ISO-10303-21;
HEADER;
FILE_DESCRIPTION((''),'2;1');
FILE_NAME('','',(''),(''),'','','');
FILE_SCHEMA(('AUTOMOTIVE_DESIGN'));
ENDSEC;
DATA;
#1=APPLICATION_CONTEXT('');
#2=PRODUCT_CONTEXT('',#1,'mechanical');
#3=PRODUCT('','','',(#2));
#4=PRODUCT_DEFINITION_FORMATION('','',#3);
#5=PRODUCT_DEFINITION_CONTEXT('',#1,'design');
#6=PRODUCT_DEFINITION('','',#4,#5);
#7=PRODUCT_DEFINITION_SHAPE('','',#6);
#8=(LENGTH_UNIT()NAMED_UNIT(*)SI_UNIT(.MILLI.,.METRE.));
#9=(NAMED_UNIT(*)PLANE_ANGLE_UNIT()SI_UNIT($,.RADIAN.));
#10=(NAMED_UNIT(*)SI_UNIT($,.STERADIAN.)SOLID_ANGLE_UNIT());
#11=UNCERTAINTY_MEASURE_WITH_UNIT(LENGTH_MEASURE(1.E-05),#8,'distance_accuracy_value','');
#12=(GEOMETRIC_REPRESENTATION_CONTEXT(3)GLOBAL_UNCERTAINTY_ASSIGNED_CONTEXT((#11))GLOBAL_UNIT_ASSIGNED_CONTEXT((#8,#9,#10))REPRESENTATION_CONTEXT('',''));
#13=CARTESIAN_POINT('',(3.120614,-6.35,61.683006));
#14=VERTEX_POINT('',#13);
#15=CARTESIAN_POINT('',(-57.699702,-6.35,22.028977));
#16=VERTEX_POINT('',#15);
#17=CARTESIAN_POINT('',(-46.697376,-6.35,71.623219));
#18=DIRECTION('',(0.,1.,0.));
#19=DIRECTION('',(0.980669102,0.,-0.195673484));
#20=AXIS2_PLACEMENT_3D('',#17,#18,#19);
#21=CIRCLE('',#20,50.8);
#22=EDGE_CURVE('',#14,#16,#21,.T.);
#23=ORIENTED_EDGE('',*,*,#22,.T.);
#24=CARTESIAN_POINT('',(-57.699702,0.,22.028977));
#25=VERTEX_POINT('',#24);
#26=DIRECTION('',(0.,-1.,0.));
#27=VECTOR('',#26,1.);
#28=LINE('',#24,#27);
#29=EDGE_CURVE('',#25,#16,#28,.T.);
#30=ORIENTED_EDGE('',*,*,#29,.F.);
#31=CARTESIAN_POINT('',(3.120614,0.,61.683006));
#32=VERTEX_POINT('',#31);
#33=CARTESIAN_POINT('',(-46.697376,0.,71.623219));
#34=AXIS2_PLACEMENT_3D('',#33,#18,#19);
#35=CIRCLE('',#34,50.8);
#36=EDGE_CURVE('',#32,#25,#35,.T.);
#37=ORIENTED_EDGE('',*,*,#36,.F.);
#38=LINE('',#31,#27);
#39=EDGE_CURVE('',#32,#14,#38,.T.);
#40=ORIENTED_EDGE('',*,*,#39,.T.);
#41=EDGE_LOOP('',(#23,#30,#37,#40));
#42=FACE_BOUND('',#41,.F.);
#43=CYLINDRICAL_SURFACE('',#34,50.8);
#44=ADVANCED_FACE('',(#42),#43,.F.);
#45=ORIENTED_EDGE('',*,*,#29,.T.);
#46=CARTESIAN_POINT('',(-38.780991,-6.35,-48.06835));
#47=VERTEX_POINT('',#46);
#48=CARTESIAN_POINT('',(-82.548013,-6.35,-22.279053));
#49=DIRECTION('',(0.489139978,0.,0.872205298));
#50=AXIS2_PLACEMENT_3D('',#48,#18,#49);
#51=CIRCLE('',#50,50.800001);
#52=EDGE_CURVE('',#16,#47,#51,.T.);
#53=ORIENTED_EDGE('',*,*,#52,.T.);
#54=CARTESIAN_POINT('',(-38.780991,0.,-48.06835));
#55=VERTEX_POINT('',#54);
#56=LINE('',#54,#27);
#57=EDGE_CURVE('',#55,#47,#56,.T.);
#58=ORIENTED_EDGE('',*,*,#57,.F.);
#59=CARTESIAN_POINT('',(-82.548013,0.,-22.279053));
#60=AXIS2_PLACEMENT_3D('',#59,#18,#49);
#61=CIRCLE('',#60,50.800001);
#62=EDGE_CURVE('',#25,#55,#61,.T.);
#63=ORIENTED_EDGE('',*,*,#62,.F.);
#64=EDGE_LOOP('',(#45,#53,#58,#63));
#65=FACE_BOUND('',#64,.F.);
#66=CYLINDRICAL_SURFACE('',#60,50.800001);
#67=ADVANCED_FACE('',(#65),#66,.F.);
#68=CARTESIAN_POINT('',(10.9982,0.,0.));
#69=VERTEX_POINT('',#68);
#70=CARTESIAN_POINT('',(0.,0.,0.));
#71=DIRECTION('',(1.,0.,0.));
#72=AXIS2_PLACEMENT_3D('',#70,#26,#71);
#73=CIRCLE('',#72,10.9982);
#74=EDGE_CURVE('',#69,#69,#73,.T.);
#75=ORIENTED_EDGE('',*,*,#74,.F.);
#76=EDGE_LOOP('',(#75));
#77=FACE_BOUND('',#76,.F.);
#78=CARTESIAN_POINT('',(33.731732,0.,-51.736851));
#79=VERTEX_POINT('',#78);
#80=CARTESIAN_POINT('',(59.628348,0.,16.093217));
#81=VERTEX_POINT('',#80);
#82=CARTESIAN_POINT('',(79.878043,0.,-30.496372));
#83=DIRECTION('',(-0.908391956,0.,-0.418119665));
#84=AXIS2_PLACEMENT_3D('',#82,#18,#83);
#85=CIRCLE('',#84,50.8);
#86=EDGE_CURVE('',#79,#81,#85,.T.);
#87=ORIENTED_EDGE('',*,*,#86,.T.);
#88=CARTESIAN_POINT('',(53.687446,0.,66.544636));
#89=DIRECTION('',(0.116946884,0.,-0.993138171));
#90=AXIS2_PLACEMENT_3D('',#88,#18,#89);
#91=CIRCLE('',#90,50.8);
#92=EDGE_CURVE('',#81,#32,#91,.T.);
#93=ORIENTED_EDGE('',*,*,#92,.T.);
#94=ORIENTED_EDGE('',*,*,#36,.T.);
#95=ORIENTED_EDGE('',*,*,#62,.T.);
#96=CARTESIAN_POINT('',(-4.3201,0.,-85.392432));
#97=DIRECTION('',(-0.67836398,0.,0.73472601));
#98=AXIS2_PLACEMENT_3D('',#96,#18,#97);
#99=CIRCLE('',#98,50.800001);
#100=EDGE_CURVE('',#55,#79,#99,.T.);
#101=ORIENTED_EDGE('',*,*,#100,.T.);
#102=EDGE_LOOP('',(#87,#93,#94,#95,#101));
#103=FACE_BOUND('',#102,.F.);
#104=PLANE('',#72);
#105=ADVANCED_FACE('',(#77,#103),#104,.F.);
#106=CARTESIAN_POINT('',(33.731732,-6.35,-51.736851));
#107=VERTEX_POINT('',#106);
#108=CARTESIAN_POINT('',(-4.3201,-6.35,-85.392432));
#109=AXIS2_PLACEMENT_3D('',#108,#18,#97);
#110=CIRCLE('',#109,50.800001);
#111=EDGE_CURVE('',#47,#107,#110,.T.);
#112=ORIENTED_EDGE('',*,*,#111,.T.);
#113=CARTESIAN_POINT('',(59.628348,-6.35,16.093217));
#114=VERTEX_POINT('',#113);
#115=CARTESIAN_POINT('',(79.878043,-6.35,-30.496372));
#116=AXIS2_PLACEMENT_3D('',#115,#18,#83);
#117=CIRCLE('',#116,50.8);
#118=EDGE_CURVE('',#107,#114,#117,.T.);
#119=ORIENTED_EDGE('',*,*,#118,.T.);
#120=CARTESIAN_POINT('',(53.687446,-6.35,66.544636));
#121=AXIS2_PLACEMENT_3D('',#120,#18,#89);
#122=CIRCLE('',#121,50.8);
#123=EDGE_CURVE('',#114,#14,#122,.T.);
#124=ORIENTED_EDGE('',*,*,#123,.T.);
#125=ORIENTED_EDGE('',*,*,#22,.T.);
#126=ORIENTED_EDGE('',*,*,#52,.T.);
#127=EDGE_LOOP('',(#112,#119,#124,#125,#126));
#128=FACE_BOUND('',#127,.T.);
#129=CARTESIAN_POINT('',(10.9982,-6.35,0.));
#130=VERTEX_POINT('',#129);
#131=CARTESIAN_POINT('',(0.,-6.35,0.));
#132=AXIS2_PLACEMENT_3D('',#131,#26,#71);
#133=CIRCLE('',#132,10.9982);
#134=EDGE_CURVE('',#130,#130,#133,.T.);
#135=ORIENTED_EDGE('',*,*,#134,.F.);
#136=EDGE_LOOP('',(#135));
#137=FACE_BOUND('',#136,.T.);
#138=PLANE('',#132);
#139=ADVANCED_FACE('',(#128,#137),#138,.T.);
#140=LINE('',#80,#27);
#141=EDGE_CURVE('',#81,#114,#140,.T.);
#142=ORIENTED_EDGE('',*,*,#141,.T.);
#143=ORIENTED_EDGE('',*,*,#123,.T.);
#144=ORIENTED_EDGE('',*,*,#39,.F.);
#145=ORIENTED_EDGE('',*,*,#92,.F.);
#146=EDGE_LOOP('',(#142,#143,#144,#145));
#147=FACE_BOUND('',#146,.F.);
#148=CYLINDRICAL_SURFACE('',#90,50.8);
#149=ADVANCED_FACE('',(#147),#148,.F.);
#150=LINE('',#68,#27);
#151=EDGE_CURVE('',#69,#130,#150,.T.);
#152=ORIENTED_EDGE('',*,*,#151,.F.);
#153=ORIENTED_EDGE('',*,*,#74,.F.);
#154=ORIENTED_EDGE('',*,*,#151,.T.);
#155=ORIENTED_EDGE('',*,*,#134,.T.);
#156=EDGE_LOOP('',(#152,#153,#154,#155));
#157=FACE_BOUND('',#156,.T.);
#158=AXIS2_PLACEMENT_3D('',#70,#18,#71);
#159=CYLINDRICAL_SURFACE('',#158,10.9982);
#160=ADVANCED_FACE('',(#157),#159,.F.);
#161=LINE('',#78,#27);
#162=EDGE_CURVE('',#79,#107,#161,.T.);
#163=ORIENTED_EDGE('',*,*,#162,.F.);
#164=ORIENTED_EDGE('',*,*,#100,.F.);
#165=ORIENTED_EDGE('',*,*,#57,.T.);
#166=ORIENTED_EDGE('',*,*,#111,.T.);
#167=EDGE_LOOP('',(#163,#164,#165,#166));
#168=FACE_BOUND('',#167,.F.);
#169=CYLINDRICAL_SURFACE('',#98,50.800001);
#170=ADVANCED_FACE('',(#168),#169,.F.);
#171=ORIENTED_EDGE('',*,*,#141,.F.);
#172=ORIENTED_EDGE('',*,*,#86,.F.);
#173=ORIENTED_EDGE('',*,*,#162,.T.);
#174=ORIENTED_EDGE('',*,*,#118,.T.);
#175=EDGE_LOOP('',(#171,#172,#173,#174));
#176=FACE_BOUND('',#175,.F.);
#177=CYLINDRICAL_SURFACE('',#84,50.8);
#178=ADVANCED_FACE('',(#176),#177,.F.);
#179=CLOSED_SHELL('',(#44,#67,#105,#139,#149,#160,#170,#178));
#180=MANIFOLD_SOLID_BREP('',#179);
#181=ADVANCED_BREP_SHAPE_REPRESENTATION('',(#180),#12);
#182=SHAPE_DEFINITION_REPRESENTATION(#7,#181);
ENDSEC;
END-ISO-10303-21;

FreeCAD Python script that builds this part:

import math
import FreeCAD as App
import Part
import Sketcher
from FreeCAD import Vector
Q = App.Units.Quantity

doc = App.newDocument("Part")
body = doc.addObject("PartDesign::Body", "Body")

sketch1 = doc.addObject("Sketcher::SketchObject", "Sketch")
body.addObject(sketch1)
sketch1.AttachmentSupport = (doc.XZ_Plane, [""])
sketch1.MapMode = "FlatFace"
sketch1.addGeometry(Part.ArcOfCircle(Part.Circle(Vector(-47, 72, 0), Vector(0, 0, 1), 51), math.radians(-103), math.radians(-11)), False)
sketch1.addGeometry(Part.ArcOfCircle(Part.Circle(Vector(-83, -22, 0), Vector(0, 0, 1), 51), math.radians(-31), math.radians(61)), False)
sketch1.addGeometry(Part.ArcOfCircle(Part.Circle(Vector(-4, -85, 0), Vector(0, 0, 1), 51), math.radians(41), math.radians(133)), False)
sketch1.addGeometry(Part.ArcOfCircle(Part.Circle(Vector(80, -30, 0), Vector(0, 0, 1), 51), math.radians(113), math.radians(205)), False)
sketch1.addGeometry(Part.ArcOfCircle(Part.Circle(Vector(54, 67, 0), Vector(0, 0, 1), 51), math.radians(-175), math.radians(-83)), False)
sketch1.addGeometry(Part.Circle(Vector(0, 0, 0), Vector(0, 0, 1), 11), False)
sketch1.addConstraint(Sketcher.Constraint("Coincident", 0, 1, 1, 2))
sketch1.addConstraint(Sketcher.Constraint("Coincident", 1, 1, 2, 2))
sketch1.addConstraint(Sketcher.Constraint("Coincident", 2, 1, 3, 2))
sketch1.addConstraint(Sketcher.Constraint("Coincident", 3, 1, 4, 2))
sketch1.addConstraint(Sketcher.Constraint("Coincident", 4, 1, 0, 2))
sketch1.addConstraint(Sketcher.Constraint("Coincident", 5, 3, -1, 1))
sketch1.addConstraint(Sketcher.Constraint("Equal", 0, 1))
sketch1.addConstraint(Sketcher.Constraint("Equal", 1, 2))
sketch1.addConstraint(Sketcher.Constraint("Equal", 2, 3))
sketch1.addConstraint(Sketcher.Constraint("Equal", 3, 4))
sketch1.addConstraint(Sketcher.Constraint("Radius", 0, Q("2 in")))
sketch1.addConstraint(Sketcher.Constraint("Diameter", 5, Q("0.866 in")))
sketch1.addConstraint(Sketcher.Constraint("DistanceX", 2, 3, -1, 1, Q("4.3201 mm")))
sketch1.addConstraint(Sketcher.Constraint("DistanceX", 0, 1, 2, 3, Q("53.379602 mm")))
sketch1.addConstraint(Sketcher.Constraint("DistanceY", 2, 1, 1, 1, Q("3.668501 mm")))
sketch1.addConstraint(Sketcher.Constraint("DistanceX", 4, 3, 3, 1, Q("5.940902 mm")))
sketch1.addConstraint(Sketcher.Constraint("DistanceY", -1, 1, 0, 3, Q("71.623219 mm")))
sketch1.addConstraint(Sketcher.Constraint("DistanceY", 2, 3, -1, 1, Q("85.392432 mm")))
sketch1.addConstraint(Sketcher.Constraint("DistanceX", 1, 1, -1, 1, Q("38.780991 mm")))
sketch1.addConstraint(Sketcher.Constraint("DistanceX", -1, 1, 3, 1, Q("59.628348 mm")))
sketch1.addConstraint(Sketcher.Constraint("DistanceY", 1, 3, 0, 3, Q("93.902272 mm")))
sketch1.addConstraint(Sketcher.Constraint("DistanceY", 2, 3, 3, 3, Q("54.89606 mm")))
pad1 = doc.addObject("PartDesign::Pad", "Pad")
body.addObject(pad1)
pad1.Profile = sketch1
pad1.Length = Q("0.25 in")

doc.recompute()
